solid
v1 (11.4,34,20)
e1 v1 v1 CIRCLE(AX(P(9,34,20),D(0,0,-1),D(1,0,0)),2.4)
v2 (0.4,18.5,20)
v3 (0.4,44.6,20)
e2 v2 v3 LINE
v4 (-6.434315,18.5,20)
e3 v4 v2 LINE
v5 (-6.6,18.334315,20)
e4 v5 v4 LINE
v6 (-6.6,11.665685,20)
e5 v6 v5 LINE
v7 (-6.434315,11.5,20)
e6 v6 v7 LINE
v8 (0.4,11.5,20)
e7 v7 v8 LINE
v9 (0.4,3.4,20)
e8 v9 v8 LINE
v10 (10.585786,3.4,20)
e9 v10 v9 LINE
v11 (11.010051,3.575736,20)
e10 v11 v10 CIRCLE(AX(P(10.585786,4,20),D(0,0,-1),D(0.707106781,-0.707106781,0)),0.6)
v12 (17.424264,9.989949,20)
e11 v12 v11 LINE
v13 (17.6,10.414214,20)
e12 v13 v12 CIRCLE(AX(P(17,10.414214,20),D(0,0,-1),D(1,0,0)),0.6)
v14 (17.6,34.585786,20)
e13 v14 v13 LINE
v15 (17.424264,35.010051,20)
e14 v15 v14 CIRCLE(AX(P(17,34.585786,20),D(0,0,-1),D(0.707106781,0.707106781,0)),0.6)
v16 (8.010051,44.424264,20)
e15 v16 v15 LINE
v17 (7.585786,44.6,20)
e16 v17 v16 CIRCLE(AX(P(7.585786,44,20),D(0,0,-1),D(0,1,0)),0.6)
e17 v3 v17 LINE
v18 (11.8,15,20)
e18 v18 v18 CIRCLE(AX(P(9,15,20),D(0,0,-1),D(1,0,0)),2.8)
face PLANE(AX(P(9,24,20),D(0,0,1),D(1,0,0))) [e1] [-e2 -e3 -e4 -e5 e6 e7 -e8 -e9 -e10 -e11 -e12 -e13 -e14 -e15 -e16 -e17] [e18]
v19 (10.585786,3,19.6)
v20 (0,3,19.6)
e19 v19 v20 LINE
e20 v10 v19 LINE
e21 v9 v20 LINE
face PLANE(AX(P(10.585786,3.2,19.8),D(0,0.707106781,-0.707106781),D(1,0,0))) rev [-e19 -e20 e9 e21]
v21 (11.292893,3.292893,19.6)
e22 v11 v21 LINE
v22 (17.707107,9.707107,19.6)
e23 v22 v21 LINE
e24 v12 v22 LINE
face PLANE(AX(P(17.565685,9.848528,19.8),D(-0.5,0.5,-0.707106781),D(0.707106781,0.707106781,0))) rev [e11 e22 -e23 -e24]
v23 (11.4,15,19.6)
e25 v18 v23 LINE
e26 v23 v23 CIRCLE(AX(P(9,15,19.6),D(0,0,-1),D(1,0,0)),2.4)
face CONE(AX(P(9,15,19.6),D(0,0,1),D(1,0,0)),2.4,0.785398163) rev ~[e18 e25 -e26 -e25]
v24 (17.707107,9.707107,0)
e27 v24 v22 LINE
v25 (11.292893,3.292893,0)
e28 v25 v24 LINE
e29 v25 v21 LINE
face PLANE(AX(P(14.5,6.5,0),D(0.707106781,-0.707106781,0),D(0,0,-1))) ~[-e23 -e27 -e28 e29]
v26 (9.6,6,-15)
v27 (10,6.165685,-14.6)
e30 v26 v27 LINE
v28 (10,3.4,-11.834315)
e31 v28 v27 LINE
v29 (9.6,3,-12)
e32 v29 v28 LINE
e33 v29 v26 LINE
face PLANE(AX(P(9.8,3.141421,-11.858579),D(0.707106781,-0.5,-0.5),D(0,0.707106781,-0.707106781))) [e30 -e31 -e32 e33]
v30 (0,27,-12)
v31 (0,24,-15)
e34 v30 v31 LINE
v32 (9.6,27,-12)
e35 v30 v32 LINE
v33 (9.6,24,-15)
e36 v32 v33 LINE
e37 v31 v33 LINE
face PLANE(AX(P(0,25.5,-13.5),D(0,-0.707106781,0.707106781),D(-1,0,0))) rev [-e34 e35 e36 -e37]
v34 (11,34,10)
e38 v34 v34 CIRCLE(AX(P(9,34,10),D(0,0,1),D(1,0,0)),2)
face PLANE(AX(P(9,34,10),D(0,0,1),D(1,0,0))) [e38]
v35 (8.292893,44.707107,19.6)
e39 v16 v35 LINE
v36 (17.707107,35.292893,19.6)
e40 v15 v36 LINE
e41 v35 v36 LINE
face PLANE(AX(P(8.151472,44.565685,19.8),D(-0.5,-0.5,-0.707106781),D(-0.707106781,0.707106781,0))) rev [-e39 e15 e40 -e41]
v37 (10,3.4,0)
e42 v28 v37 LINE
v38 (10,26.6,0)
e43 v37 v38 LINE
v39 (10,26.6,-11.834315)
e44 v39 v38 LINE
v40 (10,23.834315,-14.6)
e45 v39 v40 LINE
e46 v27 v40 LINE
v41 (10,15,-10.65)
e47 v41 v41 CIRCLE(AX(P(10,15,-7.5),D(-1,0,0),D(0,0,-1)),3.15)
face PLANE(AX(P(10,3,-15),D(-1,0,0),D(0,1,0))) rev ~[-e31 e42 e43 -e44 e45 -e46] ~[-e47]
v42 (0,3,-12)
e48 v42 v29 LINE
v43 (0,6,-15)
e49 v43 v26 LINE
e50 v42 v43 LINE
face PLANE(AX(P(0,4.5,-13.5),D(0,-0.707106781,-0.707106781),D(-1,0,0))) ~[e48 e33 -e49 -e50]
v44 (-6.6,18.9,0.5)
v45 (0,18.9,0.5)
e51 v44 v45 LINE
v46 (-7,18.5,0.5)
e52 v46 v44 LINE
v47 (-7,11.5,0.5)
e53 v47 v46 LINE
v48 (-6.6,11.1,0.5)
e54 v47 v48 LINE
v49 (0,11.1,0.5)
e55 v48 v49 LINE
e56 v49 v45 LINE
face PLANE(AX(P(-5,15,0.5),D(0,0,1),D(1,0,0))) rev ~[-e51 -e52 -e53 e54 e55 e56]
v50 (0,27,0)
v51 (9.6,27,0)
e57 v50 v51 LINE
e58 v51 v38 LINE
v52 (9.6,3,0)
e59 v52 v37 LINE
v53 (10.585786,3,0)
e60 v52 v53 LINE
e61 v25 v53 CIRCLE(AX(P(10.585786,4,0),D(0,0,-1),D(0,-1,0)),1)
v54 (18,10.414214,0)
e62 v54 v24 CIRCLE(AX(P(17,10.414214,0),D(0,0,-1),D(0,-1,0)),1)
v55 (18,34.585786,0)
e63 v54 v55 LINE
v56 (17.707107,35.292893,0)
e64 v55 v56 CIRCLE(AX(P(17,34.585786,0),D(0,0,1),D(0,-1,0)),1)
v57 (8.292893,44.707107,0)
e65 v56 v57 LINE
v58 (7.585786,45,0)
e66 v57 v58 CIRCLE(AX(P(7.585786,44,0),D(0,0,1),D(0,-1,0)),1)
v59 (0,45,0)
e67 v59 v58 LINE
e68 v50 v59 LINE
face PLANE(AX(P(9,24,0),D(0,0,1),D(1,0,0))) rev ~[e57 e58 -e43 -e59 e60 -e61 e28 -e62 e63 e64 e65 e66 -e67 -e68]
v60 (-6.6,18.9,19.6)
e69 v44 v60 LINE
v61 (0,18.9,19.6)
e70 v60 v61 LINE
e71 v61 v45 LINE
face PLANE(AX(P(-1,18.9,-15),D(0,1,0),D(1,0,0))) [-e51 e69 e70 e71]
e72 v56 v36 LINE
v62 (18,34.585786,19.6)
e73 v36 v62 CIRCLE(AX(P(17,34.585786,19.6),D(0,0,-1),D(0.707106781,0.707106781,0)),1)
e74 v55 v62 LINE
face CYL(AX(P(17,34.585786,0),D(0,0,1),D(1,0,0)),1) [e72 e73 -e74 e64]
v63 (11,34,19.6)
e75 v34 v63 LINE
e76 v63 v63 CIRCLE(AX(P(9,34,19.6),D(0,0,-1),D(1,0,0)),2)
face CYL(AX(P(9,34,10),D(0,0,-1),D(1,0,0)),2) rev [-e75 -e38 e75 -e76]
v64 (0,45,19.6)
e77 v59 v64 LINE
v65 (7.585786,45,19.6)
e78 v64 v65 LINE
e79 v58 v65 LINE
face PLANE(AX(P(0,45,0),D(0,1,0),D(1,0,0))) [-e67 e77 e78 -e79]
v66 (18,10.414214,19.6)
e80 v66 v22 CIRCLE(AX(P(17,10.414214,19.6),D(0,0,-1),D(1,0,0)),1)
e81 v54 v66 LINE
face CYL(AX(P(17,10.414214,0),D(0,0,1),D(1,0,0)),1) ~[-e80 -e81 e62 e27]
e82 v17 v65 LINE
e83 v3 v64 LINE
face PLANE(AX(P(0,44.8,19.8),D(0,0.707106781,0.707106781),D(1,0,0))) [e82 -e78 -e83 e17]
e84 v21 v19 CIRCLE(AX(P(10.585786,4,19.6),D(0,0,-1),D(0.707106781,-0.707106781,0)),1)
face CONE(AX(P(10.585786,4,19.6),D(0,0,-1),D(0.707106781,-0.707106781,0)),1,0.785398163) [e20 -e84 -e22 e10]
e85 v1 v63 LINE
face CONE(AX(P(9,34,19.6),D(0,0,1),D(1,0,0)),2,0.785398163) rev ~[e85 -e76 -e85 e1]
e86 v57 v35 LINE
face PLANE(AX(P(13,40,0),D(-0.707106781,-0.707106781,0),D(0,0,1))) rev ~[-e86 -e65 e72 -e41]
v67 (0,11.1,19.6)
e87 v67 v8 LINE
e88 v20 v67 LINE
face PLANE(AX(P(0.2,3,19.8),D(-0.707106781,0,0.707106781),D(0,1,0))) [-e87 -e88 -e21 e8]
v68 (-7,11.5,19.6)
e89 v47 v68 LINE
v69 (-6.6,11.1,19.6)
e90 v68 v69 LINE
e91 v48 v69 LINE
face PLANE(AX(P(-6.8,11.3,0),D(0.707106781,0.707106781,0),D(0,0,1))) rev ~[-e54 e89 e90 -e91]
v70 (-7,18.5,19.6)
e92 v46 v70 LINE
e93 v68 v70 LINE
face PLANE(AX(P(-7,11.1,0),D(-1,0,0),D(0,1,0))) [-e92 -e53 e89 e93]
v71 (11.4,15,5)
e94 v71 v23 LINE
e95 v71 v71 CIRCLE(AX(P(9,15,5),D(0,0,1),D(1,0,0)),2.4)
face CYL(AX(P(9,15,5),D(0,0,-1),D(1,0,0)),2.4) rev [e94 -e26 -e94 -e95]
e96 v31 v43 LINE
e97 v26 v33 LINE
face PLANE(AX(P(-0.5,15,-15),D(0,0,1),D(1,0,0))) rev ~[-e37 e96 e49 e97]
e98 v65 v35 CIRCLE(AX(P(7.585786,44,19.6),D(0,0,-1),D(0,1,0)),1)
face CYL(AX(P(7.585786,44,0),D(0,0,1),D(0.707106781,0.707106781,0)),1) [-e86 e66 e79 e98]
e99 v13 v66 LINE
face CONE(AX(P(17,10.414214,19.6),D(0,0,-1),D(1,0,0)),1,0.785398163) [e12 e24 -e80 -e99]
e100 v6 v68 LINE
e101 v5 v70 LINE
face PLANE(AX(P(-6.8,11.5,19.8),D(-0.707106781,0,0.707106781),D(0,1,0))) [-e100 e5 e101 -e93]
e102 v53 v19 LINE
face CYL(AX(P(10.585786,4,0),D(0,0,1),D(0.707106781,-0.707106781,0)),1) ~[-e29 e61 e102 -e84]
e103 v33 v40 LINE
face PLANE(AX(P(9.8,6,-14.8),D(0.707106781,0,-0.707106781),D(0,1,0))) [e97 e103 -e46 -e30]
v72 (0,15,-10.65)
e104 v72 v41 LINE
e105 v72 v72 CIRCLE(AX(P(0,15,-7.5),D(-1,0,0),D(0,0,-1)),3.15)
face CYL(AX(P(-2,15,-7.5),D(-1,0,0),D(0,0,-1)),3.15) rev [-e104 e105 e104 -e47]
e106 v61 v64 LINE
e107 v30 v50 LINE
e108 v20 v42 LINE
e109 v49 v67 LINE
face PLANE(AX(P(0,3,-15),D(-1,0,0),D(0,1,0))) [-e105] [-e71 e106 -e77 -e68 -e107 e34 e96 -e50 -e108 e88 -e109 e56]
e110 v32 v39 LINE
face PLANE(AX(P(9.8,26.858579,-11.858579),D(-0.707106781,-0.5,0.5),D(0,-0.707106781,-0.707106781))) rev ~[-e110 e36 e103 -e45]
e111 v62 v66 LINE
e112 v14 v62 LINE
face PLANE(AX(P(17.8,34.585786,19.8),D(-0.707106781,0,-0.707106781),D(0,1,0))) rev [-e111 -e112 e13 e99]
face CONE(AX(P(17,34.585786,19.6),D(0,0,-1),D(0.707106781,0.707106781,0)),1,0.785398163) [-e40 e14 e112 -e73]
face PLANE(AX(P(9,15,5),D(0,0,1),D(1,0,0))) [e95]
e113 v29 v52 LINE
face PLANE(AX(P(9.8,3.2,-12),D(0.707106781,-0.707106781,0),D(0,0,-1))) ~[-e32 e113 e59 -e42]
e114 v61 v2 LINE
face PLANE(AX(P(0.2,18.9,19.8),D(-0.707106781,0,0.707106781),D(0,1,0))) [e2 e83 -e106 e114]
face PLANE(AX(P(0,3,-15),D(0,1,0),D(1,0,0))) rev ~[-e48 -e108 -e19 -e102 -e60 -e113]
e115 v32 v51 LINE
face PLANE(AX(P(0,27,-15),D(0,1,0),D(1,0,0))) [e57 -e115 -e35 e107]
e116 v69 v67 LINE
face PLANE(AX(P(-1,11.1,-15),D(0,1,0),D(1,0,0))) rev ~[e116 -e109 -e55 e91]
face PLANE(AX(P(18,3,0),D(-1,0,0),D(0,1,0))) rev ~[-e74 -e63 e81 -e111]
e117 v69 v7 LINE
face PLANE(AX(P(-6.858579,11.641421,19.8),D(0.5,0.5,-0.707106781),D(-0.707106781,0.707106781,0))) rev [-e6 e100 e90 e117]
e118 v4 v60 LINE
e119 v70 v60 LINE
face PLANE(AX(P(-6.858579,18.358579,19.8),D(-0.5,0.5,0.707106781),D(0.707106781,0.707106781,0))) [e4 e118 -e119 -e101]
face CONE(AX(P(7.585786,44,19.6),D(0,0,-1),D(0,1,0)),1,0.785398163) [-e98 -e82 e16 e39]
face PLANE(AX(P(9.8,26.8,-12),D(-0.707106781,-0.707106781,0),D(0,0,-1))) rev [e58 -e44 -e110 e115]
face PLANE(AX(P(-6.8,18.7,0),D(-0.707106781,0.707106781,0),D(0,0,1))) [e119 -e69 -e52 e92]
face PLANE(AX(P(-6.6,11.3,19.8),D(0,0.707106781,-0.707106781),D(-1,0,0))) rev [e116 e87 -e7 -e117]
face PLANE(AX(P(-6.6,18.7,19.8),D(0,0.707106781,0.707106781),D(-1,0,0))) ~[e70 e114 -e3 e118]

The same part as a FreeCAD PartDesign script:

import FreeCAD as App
import Part
import Sketcher
from FreeCAD import Vector


def edges_at(feature, points):
    """Names of the edges that pass closest to the given points."""
    edges = feature.Shape.Edges
    near = lambda p: min(range(len(edges)), key=lambda i: edges[i].distToShape(Part.Vertex(*p))[0])
    return sorted({f"Edge{near(p) + 1}" for p in points})

doc = App.newDocument("Part")
body = doc.addObject("PartDesign::Body", "Body")

# Sketch on XY plane
sketch1 = body.newObject("Sketcher::SketchObject", "Sketch")
sketch1.AttachmentSupport = (doc.getObject("XY_Plane"), [""])
sketch1.MapMode = "FlatFace"
sketch1.AttachmentOffset = App.Placement(Vector(0, 0, -16.5), App.Rotation())
sketch1.addGeometry(Part.LineSegment(Vector(-10, 20, 0), Vector(-10, 10, 0)), False)
sketch1.addGeometry(Part.LineSegment(Vector(-10, 10, 0), Vector(0, 10, 0)), False)
sketch1.addGeometry(Part.LineSegment(Vector(0, 10, 0), Vector(0, 20, 0)), False)
sketch1.addGeometry(Part.LineSegment(Vector(0, 20, 0), Vector(-10, 20, 0)), False)
sketch1.addConstraint(Sketcher.Constraint("Coincident", 0, 2, 1, 1))
sketch1.addConstraint(Sketcher.Constraint("Coincident", 1, 2, 2, 1))
sketch1.addConstraint(Sketcher.Constraint("Coincident", 2, 2, 3, 1))
sketch1.addConstraint(Sketcher.Constraint("Coincident", 3, 2, 0, 1))
sketch1.addConstraint(Sketcher.Constraint("Vertical", 0))
sketch1.addConstraint(Sketcher.Constraint("Horizontal", 1))
sketch1.addConstraint(Sketcher.Constraint("Vertical", 2))
sketch1.addConstraint(Sketcher.Constraint("Horizontal", 3))
sketch1.addConstraint(Sketcher.Constraint("PointOnObject", 1, 2, -2))
sketch1.addConstraint(Sketcher.Constraint("Equal", 3, 0))
sketch1.addConstraint(Sketcher.Constraint("DistanceX", 1, 1, 1, 2, 10.0))
sketch1.addConstraint(Sketcher.Constraint("DistanceY", -1, 1, 0, 2, 10.0))
pad1 = body.newObject("PartDesign::Pad", "Pad")
pad1.Profile = sketch1
pad1.Length = 17
body2 = doc.addObject("PartDesign::Body", "Body001")

# Sketch on XY plane
sketch2 = body2.newObject("Sketcher::SketchObject", "Sketch001")
sketch2.AttachmentSupport = (doc.getObject("XY_Plane001"), [""])
sketch2.MapMode = "FlatFace"
sketch2.AttachmentOffset = App.Placement(Vector(0, 0, 5), App.Rotation())
sketch2.addGeometry(Part.Circle(Vector(9, 15, 0), Vector(0, 0, 1), 2.4), False)
sketch2.addConstraint(Sketcher.Constraint("Diameter", 0, 4.8))
sketch2.addConstraint(Sketcher.Constraint("DistanceX", -1, 1, 0, 3, 9.0))
sketch2.addConstraint(Sketcher.Constraint("DistanceY", -1, 1, 0, 3, 15.0))
pad2 = body2.newObject("PartDesign::Pad", "Pad001")
pad2.Profile = sketch2
pad2.Length = 35
body3 = doc.addObject("PartDesign::Body", "Body002")

# Sketch on XY plane
sketch3 = body3.newObject("Sketcher::SketchObject", "Sketch002")
sketch3.AttachmentSupport = (doc.getObject("XY_Plane002"), [""])
sketch3.MapMode = "FlatFace"
sketch3.AttachmentOffset = App.Placement(Vector(0, 0, 10), App.Rotation())
sketch3.addGeometry(Part.Circle(Vector(9, 34, 0), Vector(0, 0, 1), 2), False)
sketch3.addConstraint(Sketcher.Constraint("Diameter", 0, 4.0))
sketch3.addConstraint(Sketcher.Constraint("DistanceX", -1, 1, 0, 3, 9.0))
sketch3.addConstraint(Sketcher.Constraint("DistanceY", -1, 1, 0, 3, 34.0))
pad3 = body3.newObject("PartDesign::Pad", "Pad002")
pad3.Profile = sketch3
pad3.Length = 30
body4 = doc.addObject("PartDesign::Body", "Body003")

# Sketch on YZ plane
sketch4 = body4.newObject("Sketcher::SketchObject", "Sketch003")
sketch4.AttachmentSupport = (doc.getObject("YZ_Plane003"), [""])
sketch4.MapMode = "FlatFace"
sketch4.AttachmentOffset = App.Placement(Vector(0, 0, -2), App.Rotation())
sketch4.addGeometry(Part.Circle(Vector(15, -7.5, 0), Vector(0, 0, 1), 3.1), False)
sketch4.addConstraint(Sketcher.Constraint("Diameter", 0, 6.3))
sketch4.addConstraint(Sketcher.Constraint("DistanceX", -1, 1, 0, 3, 15.0))
sketch4.addConstraint(Sketcher.Constraint("DistanceY", 0, 3, -1, 1, 7.5))
pad4 = body4.newObject("PartDesign::Pad", "Pad003")
pad4.Profile = sketch4
pad4.Length = 14
body5 = doc.addObject("PartDesign::Body", "Body004")

# Sketch on XY plane
sketch5 = body5.newObject("Sketcher::SketchObject", "Sketch004")
sketch5.AttachmentSupport = (doc.getObject("XY_Plane004"), [""])
sketch5.MapMode = "FlatFace"
sketch5.addGeometry(Part.LineSegment(Vector(-7, 19, 0), Vector(-7, 11, 0)), False)
sketch5.addGeometry(Part.LineSegment(Vector(-7, 11, 0), Vector(0, 11, 0)), False)
sketch5.addGeometry(Part.LineSegment(Vector(0, 11, 0), Vector(0, 19, 0)), False)
sketch5.addGeometry(Part.LineSegment(Vector(0, 19, 0), Vector(-7, 19, 0)), False)
sketch5.addConstraint(Sketcher.Constraint("Coincident", 0, 2, 1, 1))
sketch5.addConstraint(Sketcher.Constraint("Coincident", 1, 2, 2, 1))
sketch5.addConstraint(Sketcher.Constraint("Coincident", 2, 2, 3, 1))
sketch5.addConstraint(Sketcher.Constraint("Coincident", 3, 2, 0, 1))
sketch5.addConstraint(Sketcher.Constraint("Vertical", 0))
sketch5.addConstraint(Sketcher.Constraint("Horizontal", 1))
sketch5.addConstraint(Sketcher.Constraint("Vertical", 2))
sketch5.addConstraint(Sketcher.Constraint("Horizontal", 3))
sketch5.addConstraint(Sketcher.Constraint("PointOnObject", 1, 2, -2))
sketch5.addConstraint(Sketcher.Constraint("DistanceX", 1, 1, 1, 2, 7.0))
sketch5.addConstraint(Sketcher.Constraint("DistanceY", 0, 2, 0, 1, 7.8))
sketch5.addConstraint(Sketcher.Constraint("DistanceY", -1, 1, 0, 2, 11.1))
pad5 = body5.newObject("PartDesign::Pad", "Pad004")
pad5.Profile = sketch5
pad5.Length = 20
doc.recompute()

chamfer = body5.newObject("PartDesign::Chamfer", "Chamfer")
chamfer.Base = (pad5, edges_at(pad5, [(-7, 11.1, 10), (-7, 18.9, 10)]))
chamfer.Size = 0.4
body6 = doc.addObject("PartDesign::Body", "Body005")

# Sketch on XY plane
sketch6 = body6.newObject("Sketcher::SketchObject", "Sketch005")
sketch6.AttachmentSupport = (doc.getObject("XY_Plane005"), [""])
sketch6.MapMode = "FlatFace"
sketch6.AttachmentOffset = App.Placement(Vector(0, 0, -15), App.Rotation())
sketch6.addGeometry(Part.LineSegment(Vector(0, 27, 0), Vector(0, 3, 0)), False)
sketch6.addGeometry(Part.LineSegment(Vector(0, 3, 0), Vector(10, 3, 0)), False)
sketch6.addGeometry(Part.LineSegment(Vector(10, 3, 0), Vector(10, 27, 0)), False)
sketch6.addGeometry(Part.LineSegment(Vector(10, 27, 0), Vector(0, 27, 0)), False)
sketch6.addConstraint(Sketcher.Constraint("Coincident", 0, 2, 1, 1))
sketch6.addConstraint(Sketcher.Constraint("Coincident", 1, 2, 2, 1))
sketch6.addConstraint(Sketcher.Constraint("Coincident", 2, 2, 3, 1))
sketch6.addConstraint(Sketcher.Constraint("Coincident", 3, 2, 0, 1))
sketch6.addConstraint(Sketcher.Constraint("Vertical", 0))
sketch6.addConstraint(Sketcher.Constraint("Horizontal", 1))
sketch6.addConstraint(Sketcher.Constraint("Vertical", 2))
sketch6.addConstraint(Sketcher.Constraint("Horizontal", 3))
sketch6.addConstraint(Sketcher.Constraint("PointOnObject", 0, 2, -2))
sketch6.addConstraint(Sketcher.Constraint("DistanceX", 1, 1, 1, 2, 10.0))
sketch6.addConstraint(Sketcher.Constraint("DistanceY", 0, 2, 0, 1, 24.0))
sketch6.addConstraint(Sketcher.Constraint("DistanceY", -1, 1, 0, 2, 3.0))
pad6 = body6.newObject("PartDesign::Pad", "Pad005")
pad6.Profile = sketch6
pad6.Length = 15
doc.recompute()

chamfer2 = body6.newObject("PartDesign::Chamfer", "Chamfer001")
chamfer2.Base = (pad6, edges_at(pad6, [(5, 3, -15), (5, 27, -15)]))
chamfer2.Size = 3
doc.recompute()

chamfer3 = body6.newObject("PartDesign::Chamfer", "Chamfer002")
chamfer3.Base = (chamfer2, edges_at(chamfer2, [
    (10, 3, -6),
    (10, 4.5, -13.5),
    (10, 15, -15),
    (10, 27, -6),
    (10, 25.5, -13.5),
]))
chamfer3.Size = 0.4
body7 = doc.addObject("PartDesign::Body", "Body006")

# Sketch on XY plane
sketch7 = body7.newObject("Sketcher::SketchObject", "Sketch006")
sketch7.AttachmentSupport = (doc.getObject("XY_Plane006"), [""])
sketch7.MapMode = "FlatFace"
sketch7.AttachmentOffset = App.Placement(Vector(0, 0, -15), App.Rotation())
sketch7.addGeometry(Part.LineSegment(Vector(-1, 18.9, 0), Vector(-1, 11.1, 0)), False)
sketch7.addGeometry(Part.LineSegment(Vector(-1, 11.1, 0), Vector(0, 11.1, 0)), False)
sketch7.addGeometry(Part.LineSegment(Vector(0, 11.1, 0), Vector(0, 18.9, 0)), False)
sketch7.addGeometry(Part.LineSegment(Vector(0, 18.9, 0), Vector(-1, 18.9, 0)), False)
sketch7.addConstraint(Sketcher.Constraint("Coincident", 0, 2, 1, 1))
sketch7.addConstraint(Sketcher.Constraint("Coincident", 1, 2, 2, 1))
sketch7.addConstraint(Sketcher.Constraint("Coincident", 2, 2, 3, 1))
sketch7.addConstraint(Sketcher.Constraint("Coincident", 3, 2, 0, 1))
sketch7.addConstraint(Sketcher.Constraint("Vertical", 0))
sketch7.addConstraint(Sketcher.Constraint("Horizontal", 1))
sketch7.addConstraint(Sketcher.Constraint("Vertical", 2))
sketch7.addConstraint(Sketcher.Constraint("Horizontal", 3))
sketch7.addConstraint(Sketcher.Constraint("PointOnObject", 1, 2, -2))
sketch7.addConstraint(Sketcher.Constraint("DistanceX", 1, 1, 1, 2, 1.0))
sketch7.addConstraint(Sketcher.Constraint("DistanceY", 0, 2, 0, 1, 7.8))
sketch7.addConstraint(Sketcher.Constraint("DistanceY", -1, 1, 0, 2, 11.1))
pad7 = body7.newObject("PartDesign::Pad", "Pad006")
pad7.Profile = sketch7
pad7.Length = 15
body8 = doc.addObject("PartDesign::Body", "Body007")

# Sketch on XY plane
sketch8 = body8.newObject("Sketcher::SketchObject", "Sketch007")
sketch8.AttachmentSupport = (doc.getObject("XY_Plane007"), [""])
sketch8.MapMode = "FlatFace"
sketch8.addGeometry(Part.LineSegment(Vector(0, 45, 0), Vector(0, 3, 0)), False)
sketch8.addGeometry(Part.LineSegment(Vector(0, 3, 0), Vector(18, 3, 0)), False)
sketch8.addGeometry(Part.LineSegment(Vector(18, 3, 0), Vector(18, 45, 0)), False)
sketch8.addGeometry(Part.LineSegment(Vector(18, 45, 0), Vector(0, 45, 0)), False)
sketch8.addConstraint(Sketcher.Constraint("Coincident", 0, 2, 1, 1))
sketch8.addConstraint(Sketcher.Constraint("Coincident", 1, 2, 2, 1))
sketch8.addConstraint(Sketcher.Constraint("Coincident", 2, 2, 3, 1))
sketch8.addConstraint(Sketcher.Constraint("Coincident", 3, 2, 0, 1))
sketch8.addConstraint(Sketcher.Constraint("Vertical", 0))
sketch8.addConstraint(Sketcher.Constraint("Horizontal", 1))
sketch8.addConstraint(Sketcher.Constraint("Vertical", 2))
sketch8.addConstraint(Sketcher.Constraint("Horizontal", 3))
sketch8.addConstraint(Sketcher.Constraint("PointOnObject", 0, 2, -2))
sketch8.addConstraint(Sketcher.Constraint("DistanceX", 1, 1, 1, 2, 18.0))
sketch8.addConstraint(Sketcher.Constraint("DistanceY", 0, 2, 0, 1, 42.0))
sketch8.addConstraint(Sketcher.Constraint("DistanceY", -1, 1, 0, 2, 3.0))
pad8 = body8.newObject("PartDesign::Pad", "Pad007")
pad8.Profile = sketch8
pad8.Length = 20
doc.recompute()

chamfer4 = body8.newObject("PartDesign::Chamfer", "Chamfer003")
chamfer4.Base = (pad8, edges_at(pad8, [(18, 3, 10)]))
chamfer4.Size = 7
doc.recompute()

chamfer5 = body8.newObject("PartDesign::Chamfer", "Chamfer004")
chamfer5.Base = (chamfer4, edges_at(chamfer4, [(18, 45, 10)]))
chamfer5.Size = 10
doc.recompute()

fillet = body8.newObject("PartDesign::Fillet", "Fillet")
fillet.Base = (chamfer5, edges_at(chamfer5, [
    (18, 35, 10),
    (18, 10, 10),
    (8, 45, 10),
    (11, 3, 10),
]))
fillet.Radius = 1
doc.recompute()

boolean = body8.newObject("PartDesign::Boolean", "Boolean")
boolean.Type = "Fuse"
boolean.addObjects([body5])
doc.recompute()

boolean2 = body8.newObject("PartDesign::Boolean", "Boolean001")
boolean2.Type = "Fuse"
boolean2.addObjects([body6])
doc.recompute()

boolean3 = body8.newObject("PartDesign::Boolean", "Boolean002")
boolean3.Type = "Fuse"
boolean3.addObjects([body7])
doc.recompute()

boolean4 = body8.newObject("PartDesign::Boolean", "Boolean003")
boolean4.Type = "Cut"
boolean4.addObjects([body4])
doc.recompute()

boolean5 = body8.newObject("PartDesign::Boolean", "Boolean004")
boolean5.Type = "Cut"
boolean5.addObjects([body3])
doc.recompute()

boolean6 = body8.newObject("PartDesign::Boolean", "Boolean005")
boolean6.Type = "Cut"
boolean6.addObjects([body2])
doc.recompute()

chamfer6 = body8.newObject("PartDesign::Chamfer", "Chamfer005")
chamfer6.Base = (boolean6, edges_at(boolean6, [
    (-7, 15, 20),
    (-6.8, 18.7, 20),
    (-6.8, 11.3, 20),
    (3.793, 45, 20),
    (17.924, 10.032, 20),
    (14.5, 6.5, 20),
    (10.968, 3.076, 20),
    (7.968, 44.924, 20),
    (13, 40, 20),
    (17.924, 34.968, 20),
    (18, 22.5, 20),
    (-3.3, 11.1, 20),
    (-3.3, 18.9, 20),
    (0, 7.05, 20),
    (0, 31.95, 20),
    (5.293, 3, 20),
    (6.6, 15, 20),
    (7, 34, 20),
]))
chamfer6.Size = 0.4
doc.recompute()

boolean7 = body8.newObject("PartDesign::Boolean", "Boolean006")
boolean7.Type = "Cut"
boolean7.addObjects([body])

doc.recompute()
